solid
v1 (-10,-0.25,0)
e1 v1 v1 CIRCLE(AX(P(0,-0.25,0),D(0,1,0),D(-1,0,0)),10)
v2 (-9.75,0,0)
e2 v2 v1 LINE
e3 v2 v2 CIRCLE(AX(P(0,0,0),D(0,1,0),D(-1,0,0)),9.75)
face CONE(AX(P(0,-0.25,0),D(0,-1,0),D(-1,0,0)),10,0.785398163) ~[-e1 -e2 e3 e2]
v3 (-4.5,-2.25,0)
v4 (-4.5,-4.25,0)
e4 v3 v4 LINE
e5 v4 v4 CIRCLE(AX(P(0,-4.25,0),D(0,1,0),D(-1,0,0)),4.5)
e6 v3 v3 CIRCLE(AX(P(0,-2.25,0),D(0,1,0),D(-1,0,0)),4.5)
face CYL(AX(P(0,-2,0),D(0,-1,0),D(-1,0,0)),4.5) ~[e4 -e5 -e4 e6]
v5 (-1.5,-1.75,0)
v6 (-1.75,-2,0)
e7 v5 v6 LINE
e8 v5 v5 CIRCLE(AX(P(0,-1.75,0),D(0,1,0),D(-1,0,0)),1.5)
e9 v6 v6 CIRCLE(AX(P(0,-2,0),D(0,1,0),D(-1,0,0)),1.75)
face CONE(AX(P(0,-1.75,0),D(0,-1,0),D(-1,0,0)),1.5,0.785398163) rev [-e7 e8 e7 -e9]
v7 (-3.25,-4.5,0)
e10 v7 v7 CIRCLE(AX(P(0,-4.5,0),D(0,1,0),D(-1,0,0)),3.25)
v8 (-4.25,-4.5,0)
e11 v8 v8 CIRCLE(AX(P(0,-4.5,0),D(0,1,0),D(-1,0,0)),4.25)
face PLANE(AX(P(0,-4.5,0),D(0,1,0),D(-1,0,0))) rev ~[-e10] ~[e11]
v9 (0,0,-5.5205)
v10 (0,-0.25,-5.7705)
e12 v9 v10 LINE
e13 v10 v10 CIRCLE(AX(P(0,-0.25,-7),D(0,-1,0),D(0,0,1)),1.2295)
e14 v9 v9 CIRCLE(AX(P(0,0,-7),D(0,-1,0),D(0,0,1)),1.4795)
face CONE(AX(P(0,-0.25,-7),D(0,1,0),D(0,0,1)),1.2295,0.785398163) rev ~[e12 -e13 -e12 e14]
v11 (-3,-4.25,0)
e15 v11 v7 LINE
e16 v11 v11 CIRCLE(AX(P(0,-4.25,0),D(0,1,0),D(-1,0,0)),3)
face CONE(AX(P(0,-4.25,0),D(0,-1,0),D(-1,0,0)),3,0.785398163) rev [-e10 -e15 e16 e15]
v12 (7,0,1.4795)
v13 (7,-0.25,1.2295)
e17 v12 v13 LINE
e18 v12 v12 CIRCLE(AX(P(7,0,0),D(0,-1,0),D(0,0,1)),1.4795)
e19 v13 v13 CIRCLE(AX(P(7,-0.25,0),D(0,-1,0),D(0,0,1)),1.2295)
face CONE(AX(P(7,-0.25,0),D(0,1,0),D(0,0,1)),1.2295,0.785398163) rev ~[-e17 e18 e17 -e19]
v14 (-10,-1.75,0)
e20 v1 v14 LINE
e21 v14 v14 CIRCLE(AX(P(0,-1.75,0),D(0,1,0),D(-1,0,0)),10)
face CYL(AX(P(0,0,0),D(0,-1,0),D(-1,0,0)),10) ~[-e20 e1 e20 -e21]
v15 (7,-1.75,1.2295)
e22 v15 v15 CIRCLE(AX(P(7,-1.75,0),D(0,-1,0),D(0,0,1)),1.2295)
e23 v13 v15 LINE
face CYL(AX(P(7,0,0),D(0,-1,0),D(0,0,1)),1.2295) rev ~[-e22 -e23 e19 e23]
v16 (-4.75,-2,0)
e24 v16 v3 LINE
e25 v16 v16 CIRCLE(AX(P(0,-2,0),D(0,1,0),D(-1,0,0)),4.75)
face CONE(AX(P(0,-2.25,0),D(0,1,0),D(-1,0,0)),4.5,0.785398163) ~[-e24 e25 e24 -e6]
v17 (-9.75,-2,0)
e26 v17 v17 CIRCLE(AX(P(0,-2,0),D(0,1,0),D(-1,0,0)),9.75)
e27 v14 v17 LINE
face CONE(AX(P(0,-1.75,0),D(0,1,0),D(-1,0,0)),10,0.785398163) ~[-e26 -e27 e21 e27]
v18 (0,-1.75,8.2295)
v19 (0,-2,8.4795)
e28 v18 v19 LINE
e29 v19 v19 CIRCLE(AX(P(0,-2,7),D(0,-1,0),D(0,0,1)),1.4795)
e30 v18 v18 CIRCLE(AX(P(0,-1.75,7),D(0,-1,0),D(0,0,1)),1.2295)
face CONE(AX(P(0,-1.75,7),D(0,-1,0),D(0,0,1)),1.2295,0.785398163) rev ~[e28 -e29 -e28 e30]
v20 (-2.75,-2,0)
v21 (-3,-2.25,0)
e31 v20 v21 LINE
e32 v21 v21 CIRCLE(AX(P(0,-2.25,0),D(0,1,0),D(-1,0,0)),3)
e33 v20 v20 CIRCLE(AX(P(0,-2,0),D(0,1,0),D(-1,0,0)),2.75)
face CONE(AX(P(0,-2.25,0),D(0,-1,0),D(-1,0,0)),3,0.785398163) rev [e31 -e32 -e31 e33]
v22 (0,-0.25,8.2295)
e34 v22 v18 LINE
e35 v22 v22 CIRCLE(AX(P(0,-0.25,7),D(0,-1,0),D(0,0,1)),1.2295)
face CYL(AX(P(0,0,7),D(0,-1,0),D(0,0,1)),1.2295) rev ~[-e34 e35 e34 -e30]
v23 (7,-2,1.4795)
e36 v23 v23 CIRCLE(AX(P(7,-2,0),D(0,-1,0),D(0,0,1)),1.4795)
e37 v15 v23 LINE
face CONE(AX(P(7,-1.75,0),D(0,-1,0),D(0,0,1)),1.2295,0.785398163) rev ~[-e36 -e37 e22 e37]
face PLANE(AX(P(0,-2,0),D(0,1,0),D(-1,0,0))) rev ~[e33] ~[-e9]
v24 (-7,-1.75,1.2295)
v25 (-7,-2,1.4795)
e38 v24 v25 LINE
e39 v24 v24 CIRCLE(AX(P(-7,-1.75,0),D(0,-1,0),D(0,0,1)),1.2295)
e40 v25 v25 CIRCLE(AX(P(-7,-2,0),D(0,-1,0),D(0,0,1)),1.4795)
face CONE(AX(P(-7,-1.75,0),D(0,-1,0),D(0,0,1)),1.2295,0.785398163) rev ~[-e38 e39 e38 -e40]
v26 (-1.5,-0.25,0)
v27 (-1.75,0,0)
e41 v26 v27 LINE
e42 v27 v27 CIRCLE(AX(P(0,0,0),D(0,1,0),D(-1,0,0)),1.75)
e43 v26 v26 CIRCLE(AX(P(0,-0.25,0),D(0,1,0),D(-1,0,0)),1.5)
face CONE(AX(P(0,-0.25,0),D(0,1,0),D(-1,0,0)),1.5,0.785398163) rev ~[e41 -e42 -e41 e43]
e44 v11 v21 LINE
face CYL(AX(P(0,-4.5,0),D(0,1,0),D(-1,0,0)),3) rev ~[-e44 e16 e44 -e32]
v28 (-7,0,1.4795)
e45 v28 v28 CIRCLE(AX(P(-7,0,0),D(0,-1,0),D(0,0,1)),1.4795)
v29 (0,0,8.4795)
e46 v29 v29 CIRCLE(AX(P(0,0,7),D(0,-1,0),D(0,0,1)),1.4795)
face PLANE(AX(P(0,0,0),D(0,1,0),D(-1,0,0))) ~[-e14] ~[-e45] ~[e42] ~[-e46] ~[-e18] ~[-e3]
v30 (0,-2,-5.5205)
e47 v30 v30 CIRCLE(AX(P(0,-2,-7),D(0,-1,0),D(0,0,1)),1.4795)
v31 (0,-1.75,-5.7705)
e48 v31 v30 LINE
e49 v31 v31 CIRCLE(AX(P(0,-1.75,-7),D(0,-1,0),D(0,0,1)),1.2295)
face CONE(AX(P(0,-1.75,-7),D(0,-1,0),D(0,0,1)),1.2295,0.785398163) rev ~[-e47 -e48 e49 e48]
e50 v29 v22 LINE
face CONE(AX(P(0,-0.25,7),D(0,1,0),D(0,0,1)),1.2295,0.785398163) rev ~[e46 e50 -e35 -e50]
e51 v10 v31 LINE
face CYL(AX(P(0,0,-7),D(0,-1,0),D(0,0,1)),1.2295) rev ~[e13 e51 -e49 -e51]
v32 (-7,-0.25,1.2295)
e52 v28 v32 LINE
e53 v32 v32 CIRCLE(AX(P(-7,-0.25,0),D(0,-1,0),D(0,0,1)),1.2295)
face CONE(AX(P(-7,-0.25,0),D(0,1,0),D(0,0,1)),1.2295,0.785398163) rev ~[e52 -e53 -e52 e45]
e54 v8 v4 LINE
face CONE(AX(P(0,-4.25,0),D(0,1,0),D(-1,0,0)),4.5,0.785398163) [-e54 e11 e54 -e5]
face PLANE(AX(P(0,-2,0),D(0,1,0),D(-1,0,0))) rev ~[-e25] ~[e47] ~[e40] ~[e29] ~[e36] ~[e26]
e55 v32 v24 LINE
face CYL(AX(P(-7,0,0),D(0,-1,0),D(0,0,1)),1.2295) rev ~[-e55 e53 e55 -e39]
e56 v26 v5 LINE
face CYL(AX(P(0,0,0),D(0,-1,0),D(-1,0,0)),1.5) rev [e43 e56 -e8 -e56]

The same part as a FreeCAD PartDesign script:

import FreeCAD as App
import Part
import Sketcher

V = App.Vector
Q = App.Units.Quantity


def edges_at(feature, points):
    """Names of the edges that pass closest to the given points."""
    edges = feature.Shape.Edges
    near = lambda p: min(range(len(edges)), key=lambda i: edges[i].distToShape(Part.Vertex(*p))[0])
    return sorted({f"Edge{near(p) + 1}" for p in points})


def add_polygon(sketch, points):
    """Adds a closed chain of lines whose ends are joined by coincident constraints."""
    first, n = sketch.GeometryCount, len(points)
    for a, b in zip(points, points[1:] + points[:1]):
        sketch.addGeometry(Part.LineSegment(App.Vector(*a, 0), App.Vector(*b, 0)), False)
    for i in range(n):
        sketch.addConstraint(Sketcher.Constraint("Coincident", first + i, 2, first + (i + 1) % n, 1))

doc = App.newDocument("Part")
body = doc.addObject("PartDesign::Body", "Body")

sketch1 = body.newObject("Sketcher::SketchObject", "Sketch")
sketch1.AttachmentSupport = (doc.getObject("XY_Plane"), [""])
sketch1.MapMode = "FlatFace"
add_polygon(sketch1, [(-1.5, -2), (-1.5, 0), (-10, 0), (-10, -2), (-4.5, -2), (-4.5, -4.5), (-3, -4.5), (-3, -2)])
sketch1.addConstraint(Sketcher.Constraint("Vertical", 0))
sketch1.addConstraint(Sketcher.Constraint("Horizontal", 1))
sketch1.addConstraint(Sketcher.Constraint("Vertical", 2))
sketch1.addConstraint(Sketcher.Constraint("Horizontal", 3))
sketch1.addConstraint(Sketcher.Constraint("Vertical", 4))
sketch1.addConstraint(Sketcher.Constraint("Horizontal", 5))
sketch1.addConstraint(Sketcher.Constraint("Vertical", 6))
sketch1.addConstraint(Sketcher.Constraint("Horizontal", 7))
sketch1.addConstraint(Sketcher.Constraint("PointOnObject", 0, 2, -1))
sketch1.addConstraint(Sketcher.Constraint("Horizontal", 3, 2, 6, 2))
sketch1.addConstraint(Sketcher.Constraint("Equal", 5, 7))
sketch1.addConstraint(Sketcher.Constraint("DistanceY", 0, 1, 0, 2, Q("2 mm")))
sketch1.addConstraint(Sketcher.Constraint("DistanceX", 5, 1, 5, 2, Q("1.5 mm")))
sketch1.addConstraint(Sketcher.Constraint("DistanceX", 1, 2, -1, 1, Q("10 mm")))
sketch1.addConstraint(Sketcher.Constraint("DistanceX", 5, 2, -1, 1, Q("3 mm")))
sketch1.addConstraint(Sketcher.Constraint("DistanceY", 4, 2, -1, 1, Q("4.5 mm")))
revolution = body.newObject("PartDesign::Revolution", "Revolution")
revolution.Profile = sketch1
revolution.ReferenceAxis = (sketch1, ["V_Axis"])
revolution.Angle = 360

sketch2 = body.newObject("Sketcher::SketchObject", "Sketch001")
sketch2.AttachmentSupport = (doc.getObject("XZ_Plane"), [""])
sketch2.MapMode = "FlatFace"
sketch2.addGeometry(Part.Circle(V(0, -7, 0), V(0, 0, 1), 1.2), False)
sketch2.addGeometry(Part.Circle(V(0, 7, 0), V(0, 0, 1), 1.2), False)
sketch2.addGeometry(Part.Circle(V(-7, 0, 0), V(0, 0, 1), 1.2), False)
sketch2.addGeometry(Part.Circle(V(7, 0, 0), V(0, 0, 1), 1.2), False)
sketch2.addConstraint(Sketcher.Constraint("Equal", 0, 1))
sketch2.addConstraint(Sketcher.Constraint("Equal", 1, 2))
sketch2.addConstraint(Sketcher.Constraint("Equal", 2, 3))
sketch2.addConstraint(Sketcher.Constraint("Symmetric", 0, 3, 1, 3, -1, 1))
sketch2.addConstraint(Sketcher.Constraint("Symmetric", 2, 3, 3, 3, -1, 1))
sketch2.addConstraint(Sketcher.Constraint("PointOnObject", 0, 3, -2))
sketch2.addConstraint(Sketcher.Constraint("PointOnObject", 2, 3, -1))
sketch2.addConstraint(Sketcher.Constraint("Diameter", 0, Q("2.459 mm")))
sketch2.addConstraint(Sketcher.Constraint("DistanceY", 0, 3, -1, 1, Q("7 mm")))
sketch2.addConstraint(Sketcher.Constraint("DistanceX", 2, 3, -1, 1, Q("7 mm")))
doc.recompute()
hole = body.newObject("PartDesign::Hole", "Hole")
hole.Profile = sketch2
hole.ThreadType = "None"
hole.Diameter = 2.459
hole.DepthType = "Dimension"
hole.Depth = 8.8
hole.DrillPoint = "Flat"
hole.Reversed = True
doc.recompute()

chamfer = body.newObject("PartDesign::Chamfer", "Chamfer")
chamfer.Base = (hole, edges_at(hole, [
    (10, 0, 0),
    (10, -2, 0),
    (0, 0, -8.229),
    (7, 0, -1.23),
    (-7, 0, -1.23),
    (0, 0, 5.771),
    (4.5, -2, 0),
    (4.5, -4.5, 0),
    (3, -4.5, 0),
    (3, -2, 0),
    (1.5, -2, 0),
    (1.5, 0, 0),
    (0, -2, -8.229),
    (7, -2, -1.23),
    (-7, -2, -1.23),
    (0, -2, 5.771),
]))
chamfer.Size = 0.25

doc.recompute()
